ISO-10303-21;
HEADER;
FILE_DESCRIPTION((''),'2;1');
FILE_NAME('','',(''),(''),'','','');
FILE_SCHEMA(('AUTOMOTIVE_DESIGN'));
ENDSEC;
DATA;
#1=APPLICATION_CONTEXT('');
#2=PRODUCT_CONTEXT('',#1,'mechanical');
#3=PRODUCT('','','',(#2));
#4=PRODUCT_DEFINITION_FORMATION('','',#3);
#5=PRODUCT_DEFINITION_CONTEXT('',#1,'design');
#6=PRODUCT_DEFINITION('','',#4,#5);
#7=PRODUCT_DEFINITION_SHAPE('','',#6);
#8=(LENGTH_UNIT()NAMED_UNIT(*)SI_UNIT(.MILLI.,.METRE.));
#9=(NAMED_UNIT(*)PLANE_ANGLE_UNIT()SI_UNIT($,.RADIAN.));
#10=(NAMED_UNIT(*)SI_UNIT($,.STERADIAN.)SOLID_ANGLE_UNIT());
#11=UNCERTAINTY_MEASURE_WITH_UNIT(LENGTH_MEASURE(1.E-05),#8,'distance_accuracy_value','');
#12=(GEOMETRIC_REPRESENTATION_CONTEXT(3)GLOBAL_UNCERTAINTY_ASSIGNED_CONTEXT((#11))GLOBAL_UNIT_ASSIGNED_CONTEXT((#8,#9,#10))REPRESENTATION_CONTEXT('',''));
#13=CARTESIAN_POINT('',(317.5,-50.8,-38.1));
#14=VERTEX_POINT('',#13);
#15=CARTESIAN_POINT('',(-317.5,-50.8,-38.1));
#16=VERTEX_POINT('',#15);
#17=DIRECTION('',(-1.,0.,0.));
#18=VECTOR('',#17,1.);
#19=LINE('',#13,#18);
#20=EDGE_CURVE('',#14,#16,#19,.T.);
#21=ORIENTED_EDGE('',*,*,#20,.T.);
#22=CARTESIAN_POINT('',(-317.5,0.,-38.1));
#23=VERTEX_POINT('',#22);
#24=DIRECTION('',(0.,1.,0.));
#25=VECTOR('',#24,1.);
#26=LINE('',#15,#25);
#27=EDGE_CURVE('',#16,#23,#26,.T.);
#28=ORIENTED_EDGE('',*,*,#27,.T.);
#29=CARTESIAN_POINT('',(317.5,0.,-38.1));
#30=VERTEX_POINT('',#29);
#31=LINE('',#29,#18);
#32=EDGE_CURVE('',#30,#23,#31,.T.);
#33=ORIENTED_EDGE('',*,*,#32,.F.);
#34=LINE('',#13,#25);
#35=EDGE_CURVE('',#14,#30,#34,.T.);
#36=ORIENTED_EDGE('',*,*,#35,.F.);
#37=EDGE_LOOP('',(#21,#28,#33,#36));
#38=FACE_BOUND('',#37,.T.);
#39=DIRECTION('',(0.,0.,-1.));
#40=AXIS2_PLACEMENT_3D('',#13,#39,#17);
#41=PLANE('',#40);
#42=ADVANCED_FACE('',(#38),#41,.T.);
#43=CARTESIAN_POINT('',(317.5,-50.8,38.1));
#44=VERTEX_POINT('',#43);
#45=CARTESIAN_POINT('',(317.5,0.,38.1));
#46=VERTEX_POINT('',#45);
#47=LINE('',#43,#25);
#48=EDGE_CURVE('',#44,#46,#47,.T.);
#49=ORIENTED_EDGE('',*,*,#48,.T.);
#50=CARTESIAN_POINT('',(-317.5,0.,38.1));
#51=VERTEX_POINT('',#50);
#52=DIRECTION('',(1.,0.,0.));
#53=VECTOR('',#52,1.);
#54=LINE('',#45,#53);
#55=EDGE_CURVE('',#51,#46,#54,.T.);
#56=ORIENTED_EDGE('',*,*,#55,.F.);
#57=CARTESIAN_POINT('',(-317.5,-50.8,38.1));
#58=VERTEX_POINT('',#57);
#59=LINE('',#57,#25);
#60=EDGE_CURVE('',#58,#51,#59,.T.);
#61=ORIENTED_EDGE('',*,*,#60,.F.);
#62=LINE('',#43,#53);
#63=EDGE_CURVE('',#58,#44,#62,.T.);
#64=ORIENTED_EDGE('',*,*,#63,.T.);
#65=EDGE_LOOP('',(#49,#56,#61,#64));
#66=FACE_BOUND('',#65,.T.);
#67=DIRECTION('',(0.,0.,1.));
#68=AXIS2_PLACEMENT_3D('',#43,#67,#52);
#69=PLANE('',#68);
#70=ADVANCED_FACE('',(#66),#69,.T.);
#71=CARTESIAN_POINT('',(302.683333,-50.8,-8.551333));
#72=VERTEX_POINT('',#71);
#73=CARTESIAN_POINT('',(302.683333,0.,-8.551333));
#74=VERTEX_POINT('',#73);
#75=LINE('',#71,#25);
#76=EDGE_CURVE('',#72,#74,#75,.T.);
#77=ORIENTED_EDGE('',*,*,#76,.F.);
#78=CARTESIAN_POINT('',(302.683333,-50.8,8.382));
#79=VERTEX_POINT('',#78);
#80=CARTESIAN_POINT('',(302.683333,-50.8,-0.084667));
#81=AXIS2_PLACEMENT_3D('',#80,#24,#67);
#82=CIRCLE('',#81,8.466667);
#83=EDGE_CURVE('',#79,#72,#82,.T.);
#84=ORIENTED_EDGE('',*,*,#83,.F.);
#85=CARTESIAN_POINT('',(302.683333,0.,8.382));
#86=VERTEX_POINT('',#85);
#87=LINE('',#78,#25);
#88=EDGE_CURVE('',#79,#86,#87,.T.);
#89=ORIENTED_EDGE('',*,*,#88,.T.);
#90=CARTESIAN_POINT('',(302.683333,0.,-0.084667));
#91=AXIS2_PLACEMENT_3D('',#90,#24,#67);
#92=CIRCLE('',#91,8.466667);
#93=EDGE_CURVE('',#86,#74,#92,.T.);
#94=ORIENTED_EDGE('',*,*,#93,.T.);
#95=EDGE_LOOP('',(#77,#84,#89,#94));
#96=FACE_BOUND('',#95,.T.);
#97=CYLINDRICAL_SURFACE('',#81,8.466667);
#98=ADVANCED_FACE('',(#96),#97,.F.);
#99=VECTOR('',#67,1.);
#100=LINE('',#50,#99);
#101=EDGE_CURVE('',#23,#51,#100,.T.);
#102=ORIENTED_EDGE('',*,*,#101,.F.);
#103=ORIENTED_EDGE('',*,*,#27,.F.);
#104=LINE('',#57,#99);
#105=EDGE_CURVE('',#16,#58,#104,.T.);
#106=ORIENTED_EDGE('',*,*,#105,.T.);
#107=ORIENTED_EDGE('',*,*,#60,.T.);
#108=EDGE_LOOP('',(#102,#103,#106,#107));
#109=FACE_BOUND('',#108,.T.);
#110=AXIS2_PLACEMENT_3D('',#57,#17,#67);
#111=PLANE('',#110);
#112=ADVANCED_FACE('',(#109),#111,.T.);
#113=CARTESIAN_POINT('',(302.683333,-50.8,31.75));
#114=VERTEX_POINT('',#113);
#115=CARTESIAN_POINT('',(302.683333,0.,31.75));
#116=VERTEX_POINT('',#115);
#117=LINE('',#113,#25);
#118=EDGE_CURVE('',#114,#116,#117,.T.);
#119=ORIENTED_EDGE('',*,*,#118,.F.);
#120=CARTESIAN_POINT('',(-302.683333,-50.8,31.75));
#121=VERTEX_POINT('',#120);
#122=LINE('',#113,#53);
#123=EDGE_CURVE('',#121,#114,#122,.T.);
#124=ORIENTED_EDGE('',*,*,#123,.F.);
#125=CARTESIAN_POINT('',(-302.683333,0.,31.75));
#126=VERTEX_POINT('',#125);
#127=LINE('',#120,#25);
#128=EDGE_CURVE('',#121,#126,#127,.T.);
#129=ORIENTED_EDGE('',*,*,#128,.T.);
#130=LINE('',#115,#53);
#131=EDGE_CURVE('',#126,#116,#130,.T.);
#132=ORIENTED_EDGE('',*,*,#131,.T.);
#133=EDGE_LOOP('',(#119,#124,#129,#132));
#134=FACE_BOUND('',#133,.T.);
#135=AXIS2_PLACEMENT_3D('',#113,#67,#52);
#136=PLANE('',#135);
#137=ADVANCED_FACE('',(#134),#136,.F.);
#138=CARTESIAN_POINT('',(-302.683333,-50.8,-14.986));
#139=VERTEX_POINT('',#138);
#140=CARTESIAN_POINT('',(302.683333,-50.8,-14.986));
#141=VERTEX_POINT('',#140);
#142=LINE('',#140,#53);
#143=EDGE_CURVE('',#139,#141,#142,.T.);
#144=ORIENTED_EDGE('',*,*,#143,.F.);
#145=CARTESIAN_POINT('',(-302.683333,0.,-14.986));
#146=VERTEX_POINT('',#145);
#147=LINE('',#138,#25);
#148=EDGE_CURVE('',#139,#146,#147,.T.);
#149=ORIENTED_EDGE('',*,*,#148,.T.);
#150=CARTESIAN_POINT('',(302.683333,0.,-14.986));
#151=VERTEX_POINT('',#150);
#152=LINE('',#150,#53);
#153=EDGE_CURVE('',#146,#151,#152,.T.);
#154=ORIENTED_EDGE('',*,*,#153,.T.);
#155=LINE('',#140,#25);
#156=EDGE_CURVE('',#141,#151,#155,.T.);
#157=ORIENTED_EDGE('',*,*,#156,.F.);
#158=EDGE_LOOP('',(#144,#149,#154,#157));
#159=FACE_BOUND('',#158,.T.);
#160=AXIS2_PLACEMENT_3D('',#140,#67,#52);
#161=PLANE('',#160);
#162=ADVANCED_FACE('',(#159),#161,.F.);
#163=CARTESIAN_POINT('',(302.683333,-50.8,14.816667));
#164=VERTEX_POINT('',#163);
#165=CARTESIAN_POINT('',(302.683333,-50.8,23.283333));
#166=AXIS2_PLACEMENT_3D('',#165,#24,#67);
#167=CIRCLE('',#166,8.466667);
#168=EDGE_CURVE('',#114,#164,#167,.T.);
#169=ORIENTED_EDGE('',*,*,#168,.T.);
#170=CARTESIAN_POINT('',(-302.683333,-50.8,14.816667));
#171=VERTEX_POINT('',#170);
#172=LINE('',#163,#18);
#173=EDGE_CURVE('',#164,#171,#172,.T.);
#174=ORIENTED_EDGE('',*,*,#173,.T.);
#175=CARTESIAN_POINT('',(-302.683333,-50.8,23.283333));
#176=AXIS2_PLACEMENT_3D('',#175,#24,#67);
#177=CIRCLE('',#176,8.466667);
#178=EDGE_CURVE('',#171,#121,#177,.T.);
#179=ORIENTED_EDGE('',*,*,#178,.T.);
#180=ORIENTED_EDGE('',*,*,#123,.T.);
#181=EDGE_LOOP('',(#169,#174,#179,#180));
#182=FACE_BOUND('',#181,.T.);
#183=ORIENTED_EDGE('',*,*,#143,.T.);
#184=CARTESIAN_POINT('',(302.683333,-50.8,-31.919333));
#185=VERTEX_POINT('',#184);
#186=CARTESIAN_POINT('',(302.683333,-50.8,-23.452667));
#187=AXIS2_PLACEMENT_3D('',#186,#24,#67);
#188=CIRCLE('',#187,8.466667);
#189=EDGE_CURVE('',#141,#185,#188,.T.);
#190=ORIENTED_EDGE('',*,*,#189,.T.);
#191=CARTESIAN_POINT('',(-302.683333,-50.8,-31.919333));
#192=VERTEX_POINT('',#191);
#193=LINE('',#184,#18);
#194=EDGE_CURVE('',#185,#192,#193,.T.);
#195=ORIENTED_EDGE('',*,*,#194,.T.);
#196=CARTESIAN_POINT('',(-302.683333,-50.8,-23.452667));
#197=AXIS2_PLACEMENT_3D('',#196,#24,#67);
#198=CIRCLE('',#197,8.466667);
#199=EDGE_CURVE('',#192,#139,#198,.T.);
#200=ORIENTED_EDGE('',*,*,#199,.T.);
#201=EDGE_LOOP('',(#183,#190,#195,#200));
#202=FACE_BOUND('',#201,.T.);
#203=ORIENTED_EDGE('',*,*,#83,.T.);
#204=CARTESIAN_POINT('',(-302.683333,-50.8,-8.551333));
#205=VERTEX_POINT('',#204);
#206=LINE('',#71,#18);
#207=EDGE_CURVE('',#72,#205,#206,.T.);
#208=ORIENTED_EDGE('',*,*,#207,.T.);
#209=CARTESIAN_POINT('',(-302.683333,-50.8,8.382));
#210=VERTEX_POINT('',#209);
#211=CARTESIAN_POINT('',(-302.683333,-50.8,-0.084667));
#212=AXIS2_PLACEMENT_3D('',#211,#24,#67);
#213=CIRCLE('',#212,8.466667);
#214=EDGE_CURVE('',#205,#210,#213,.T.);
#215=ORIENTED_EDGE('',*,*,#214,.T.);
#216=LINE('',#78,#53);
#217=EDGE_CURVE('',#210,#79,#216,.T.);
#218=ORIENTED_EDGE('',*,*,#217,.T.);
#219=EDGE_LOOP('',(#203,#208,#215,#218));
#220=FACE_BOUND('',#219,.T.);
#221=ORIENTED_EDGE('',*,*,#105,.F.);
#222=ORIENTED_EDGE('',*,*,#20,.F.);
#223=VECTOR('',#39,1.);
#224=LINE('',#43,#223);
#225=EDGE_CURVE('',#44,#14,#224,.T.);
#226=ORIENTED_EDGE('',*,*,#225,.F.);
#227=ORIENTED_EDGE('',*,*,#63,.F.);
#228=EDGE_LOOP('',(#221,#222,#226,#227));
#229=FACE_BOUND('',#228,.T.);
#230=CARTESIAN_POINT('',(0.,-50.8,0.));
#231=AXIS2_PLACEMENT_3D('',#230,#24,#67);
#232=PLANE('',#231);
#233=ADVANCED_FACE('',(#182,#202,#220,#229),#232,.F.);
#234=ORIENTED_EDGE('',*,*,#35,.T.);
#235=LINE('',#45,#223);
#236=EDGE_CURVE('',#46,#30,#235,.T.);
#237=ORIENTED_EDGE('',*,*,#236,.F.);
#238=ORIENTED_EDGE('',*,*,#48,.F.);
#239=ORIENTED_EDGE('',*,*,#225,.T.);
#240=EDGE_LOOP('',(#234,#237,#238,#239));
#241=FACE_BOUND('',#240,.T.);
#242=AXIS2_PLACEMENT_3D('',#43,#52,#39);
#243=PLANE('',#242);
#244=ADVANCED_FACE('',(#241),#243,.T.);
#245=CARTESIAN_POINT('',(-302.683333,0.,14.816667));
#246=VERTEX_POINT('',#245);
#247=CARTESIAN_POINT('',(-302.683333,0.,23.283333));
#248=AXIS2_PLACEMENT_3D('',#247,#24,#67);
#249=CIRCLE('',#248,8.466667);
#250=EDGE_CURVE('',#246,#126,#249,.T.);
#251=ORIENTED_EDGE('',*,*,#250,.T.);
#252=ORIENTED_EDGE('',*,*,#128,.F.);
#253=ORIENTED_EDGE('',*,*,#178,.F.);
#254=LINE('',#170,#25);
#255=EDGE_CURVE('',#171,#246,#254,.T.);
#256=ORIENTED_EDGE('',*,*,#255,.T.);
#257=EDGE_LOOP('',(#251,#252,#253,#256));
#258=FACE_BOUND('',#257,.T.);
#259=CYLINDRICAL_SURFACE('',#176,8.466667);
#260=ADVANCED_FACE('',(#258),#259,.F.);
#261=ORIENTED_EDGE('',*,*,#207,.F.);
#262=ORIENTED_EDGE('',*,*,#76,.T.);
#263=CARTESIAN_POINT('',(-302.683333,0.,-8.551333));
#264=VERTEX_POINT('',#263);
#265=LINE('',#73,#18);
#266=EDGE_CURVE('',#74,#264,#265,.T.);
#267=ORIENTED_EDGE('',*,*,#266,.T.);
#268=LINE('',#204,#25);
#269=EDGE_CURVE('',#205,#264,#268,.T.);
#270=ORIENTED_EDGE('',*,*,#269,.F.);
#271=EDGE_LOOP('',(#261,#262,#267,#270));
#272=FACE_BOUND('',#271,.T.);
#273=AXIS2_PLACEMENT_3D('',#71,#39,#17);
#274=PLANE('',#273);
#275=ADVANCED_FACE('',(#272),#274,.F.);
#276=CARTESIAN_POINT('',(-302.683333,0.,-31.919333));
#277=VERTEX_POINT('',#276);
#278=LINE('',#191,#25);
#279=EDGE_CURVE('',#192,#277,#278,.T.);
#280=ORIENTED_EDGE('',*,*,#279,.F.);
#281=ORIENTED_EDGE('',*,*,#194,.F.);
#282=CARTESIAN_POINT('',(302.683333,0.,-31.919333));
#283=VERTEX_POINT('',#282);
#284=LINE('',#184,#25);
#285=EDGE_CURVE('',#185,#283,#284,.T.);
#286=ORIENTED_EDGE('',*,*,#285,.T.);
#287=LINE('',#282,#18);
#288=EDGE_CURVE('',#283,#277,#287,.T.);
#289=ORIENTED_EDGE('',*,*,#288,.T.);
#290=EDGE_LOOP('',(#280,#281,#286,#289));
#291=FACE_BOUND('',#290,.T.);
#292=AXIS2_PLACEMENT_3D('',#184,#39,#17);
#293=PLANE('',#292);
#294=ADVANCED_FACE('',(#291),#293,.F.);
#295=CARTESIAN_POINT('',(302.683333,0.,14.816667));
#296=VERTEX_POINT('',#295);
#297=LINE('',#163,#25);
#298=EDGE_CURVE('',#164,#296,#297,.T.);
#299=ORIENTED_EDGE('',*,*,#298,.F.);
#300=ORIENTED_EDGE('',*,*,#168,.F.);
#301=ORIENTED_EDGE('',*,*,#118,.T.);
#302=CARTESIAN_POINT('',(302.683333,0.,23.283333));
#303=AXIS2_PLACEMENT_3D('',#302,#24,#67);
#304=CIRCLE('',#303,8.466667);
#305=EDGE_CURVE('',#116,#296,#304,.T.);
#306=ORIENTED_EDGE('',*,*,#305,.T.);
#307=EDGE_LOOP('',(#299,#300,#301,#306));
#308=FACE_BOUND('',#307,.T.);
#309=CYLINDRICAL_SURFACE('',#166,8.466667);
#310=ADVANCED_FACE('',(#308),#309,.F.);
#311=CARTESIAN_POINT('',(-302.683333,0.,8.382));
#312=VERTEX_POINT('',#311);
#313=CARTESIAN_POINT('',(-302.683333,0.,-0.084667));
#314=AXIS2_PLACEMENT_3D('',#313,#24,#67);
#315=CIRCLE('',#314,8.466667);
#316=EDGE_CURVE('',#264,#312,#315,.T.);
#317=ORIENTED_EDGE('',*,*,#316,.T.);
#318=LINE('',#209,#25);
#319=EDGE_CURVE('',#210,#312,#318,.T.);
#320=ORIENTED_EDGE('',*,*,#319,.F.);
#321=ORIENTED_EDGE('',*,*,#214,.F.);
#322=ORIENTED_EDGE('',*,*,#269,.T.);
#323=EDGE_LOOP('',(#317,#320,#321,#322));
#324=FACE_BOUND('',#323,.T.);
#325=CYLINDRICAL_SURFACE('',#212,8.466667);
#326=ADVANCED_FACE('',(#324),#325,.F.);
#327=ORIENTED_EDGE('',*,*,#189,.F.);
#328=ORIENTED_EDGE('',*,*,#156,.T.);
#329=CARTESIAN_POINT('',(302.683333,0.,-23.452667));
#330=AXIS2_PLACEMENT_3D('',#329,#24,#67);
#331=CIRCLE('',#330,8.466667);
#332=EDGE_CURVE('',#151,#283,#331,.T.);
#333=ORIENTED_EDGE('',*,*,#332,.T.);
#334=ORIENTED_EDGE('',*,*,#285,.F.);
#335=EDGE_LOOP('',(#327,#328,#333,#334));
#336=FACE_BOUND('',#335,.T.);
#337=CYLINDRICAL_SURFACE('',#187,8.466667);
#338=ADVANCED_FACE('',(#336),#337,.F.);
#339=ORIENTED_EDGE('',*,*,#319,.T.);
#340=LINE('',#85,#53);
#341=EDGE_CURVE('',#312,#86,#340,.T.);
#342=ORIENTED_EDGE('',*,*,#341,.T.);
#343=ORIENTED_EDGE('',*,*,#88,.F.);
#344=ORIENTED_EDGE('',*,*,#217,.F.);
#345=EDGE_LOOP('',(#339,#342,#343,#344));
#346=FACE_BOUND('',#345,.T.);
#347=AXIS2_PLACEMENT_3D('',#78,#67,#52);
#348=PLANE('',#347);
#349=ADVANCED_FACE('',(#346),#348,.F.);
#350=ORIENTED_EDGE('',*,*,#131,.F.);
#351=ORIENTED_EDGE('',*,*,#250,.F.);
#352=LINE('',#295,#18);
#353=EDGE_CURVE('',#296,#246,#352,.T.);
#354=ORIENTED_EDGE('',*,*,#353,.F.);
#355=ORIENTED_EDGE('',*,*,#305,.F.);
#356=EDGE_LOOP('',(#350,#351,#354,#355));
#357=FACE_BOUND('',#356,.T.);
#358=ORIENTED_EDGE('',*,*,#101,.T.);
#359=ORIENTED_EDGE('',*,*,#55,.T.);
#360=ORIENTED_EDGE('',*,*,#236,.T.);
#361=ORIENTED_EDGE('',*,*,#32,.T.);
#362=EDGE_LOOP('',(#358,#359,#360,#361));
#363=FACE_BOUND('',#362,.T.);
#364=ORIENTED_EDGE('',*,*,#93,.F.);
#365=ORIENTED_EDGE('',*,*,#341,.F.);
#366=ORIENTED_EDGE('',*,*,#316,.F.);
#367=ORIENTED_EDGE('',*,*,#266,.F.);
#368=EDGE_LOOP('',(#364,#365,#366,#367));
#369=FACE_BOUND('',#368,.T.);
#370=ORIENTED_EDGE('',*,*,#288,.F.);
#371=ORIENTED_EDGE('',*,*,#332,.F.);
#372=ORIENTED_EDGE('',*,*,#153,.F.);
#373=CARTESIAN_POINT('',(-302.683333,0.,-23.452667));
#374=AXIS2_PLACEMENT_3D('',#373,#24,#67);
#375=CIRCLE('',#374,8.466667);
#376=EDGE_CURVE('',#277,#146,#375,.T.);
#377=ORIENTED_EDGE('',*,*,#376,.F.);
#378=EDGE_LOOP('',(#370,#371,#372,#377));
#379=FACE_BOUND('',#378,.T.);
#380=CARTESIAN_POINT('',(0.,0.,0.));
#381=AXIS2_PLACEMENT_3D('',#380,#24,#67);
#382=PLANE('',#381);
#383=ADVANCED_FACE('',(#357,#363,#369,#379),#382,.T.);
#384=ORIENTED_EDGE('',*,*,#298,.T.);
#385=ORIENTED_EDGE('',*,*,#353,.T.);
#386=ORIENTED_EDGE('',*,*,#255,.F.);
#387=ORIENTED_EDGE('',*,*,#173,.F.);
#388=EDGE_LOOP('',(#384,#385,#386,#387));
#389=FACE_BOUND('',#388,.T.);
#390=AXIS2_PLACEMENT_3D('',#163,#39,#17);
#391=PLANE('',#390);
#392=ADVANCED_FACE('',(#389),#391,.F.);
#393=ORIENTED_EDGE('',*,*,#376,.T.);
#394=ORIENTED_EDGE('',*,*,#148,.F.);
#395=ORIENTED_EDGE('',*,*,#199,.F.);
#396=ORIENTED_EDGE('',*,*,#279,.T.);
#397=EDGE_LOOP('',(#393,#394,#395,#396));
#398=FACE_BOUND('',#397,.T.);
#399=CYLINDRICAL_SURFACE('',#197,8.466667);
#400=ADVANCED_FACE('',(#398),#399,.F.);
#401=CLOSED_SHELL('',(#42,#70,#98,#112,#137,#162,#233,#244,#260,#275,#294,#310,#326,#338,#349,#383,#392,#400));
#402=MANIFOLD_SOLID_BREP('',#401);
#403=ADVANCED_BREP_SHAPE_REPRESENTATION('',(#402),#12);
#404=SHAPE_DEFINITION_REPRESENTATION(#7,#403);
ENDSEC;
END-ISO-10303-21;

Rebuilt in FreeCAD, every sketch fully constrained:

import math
import FreeCAD as App
import Part
import Sketcher
Q = App.Units.Quantity


def add_polygon(sketch, points):
    """Adds a closed chain of lines whose ends are joined by coincident constraints."""
    first, n = sketch.GeometryCount, len(points)
    for a, b in zip(points, points[1:] + points[:1]):
        sketch.addGeometry(Part.LineSegment(App.Vector(*a, 0), App.Vector(*b, 0)), False)
    for i in range(n):
        sketch.addConstraint(Sketcher.Constraint("Coincident", first + i, 2, first + (i + 1) % n, 1))

doc = App.newDocument("Part")
body = doc.addObject("PartDesign::Body", "Body")

# Sketch on XZ plane
sketch1 = body.newObject("Sketcher::SketchObject", "Sketch")
sketch1.AttachmentSupport = (doc.getObject("XZ_Plane"), [""])
sketch1.MapMode = "FlatFace"
add_polygon(sketch1, [(-318, -38), (-318, 38), (318, 38), (318, -38)])  # lines 0-3
sketch1.addGeometry(Part.ArcOfCircle(Part.Circle(App.Vector(303, 23, 0), App.Vector(0, 0, 1), 8), math.radians(-90), math.radians(90)), False)  # 4
sketch1.addGeometry(Part.LineSegment(App.Vector(303, 32, 0), App.Vector(-303, 32, 0)), False)  # 5
sketch1.addGeometry(Part.ArcOfCircle(Part.Circle(App.Vector(-303, 23, 0), App.Vector(0, 0, 1), 8), math.radians(90), math.radians(270)), False)  # 6
sketch1.addGeometry(Part.LineSegment(App.Vector(-303, 15, 0), App.Vector(303, 15, 0)), False)  # 7
sketch1.addGeometry(Part.ArcOfCircle(Part.Circle(App.Vector(303, 0, 0), App.Vector(0, 0, 1), 8), math.radians(-90), math.radians(90)), False)  # 8
sketch1.addGeometry(Part.LineSegment(App.Vector(303, 8, 0), App.Vector(-303, 8, 0)), False)  # 9
sketch1.addGeometry(Part.ArcOfCircle(Part.Circle(App.Vector(-303, 0, 0), App.Vector(0, 0, 1), 8), math.radians(90), math.radians(270)), False)  # 10
sketch1.addGeometry(Part.LineSegment(App.Vector(-303, -9, 0), App.Vector(303, -9, 0)), False)  # 11
sketch1.addGeometry(Part.ArcOfCircle(Part.Circle(App.Vector(303, -23, 0), App.Vector(0, 0, 1), 8), math.radians(-90), math.radians(90)), False)  # 12
sketch1.addGeometry(Part.LineSegment(App.Vector(303, -15, 0), App.Vector(-303, -15, 0)), False)  # 13
sketch1.addGeometry(Part.ArcOfCircle(Part.Circle(App.Vector(-303, -23, 0), App.Vector(0, 0, 1), 8), math.radians(90), math.radians(270)), False)  # 14
sketch1.addGeometry(Part.LineSegment(App.Vector(-303, -32, 0), App.Vector(303, -32, 0)), False)  # 15
sketch1.addConstraint(Sketcher.Constraint("Tangent", 4, 2, 5, 1))
sketch1.addConstraint(Sketcher.Constraint("Tangent", 5, 2, 6, 1))
sketch1.addConstraint(Sketcher.Constraint("Tangent", 6, 2, 7, 1))
sketch1.addConstraint(Sketcher.Constraint("Tangent", 7, 2, 4, 1))
sketch1.addConstraint(Sketcher.Constraint("Tangent", 8, 2, 9, 1))
sketch1.addConstraint(Sketcher.Constraint("Tangent", 9, 2, 10, 1))
sketch1.addConstraint(Sketcher.Constraint("Tangent", 10, 2, 11, 1))
sketch1.addConstraint(Sketcher.Constraint("Tangent", 11, 2, 8, 1))
sketch1.addConstraint(Sketcher.Constraint("Tangent", 12, 2, 13, 1))
sketch1.addConstraint(Sketcher.Constraint("Tangent", 13, 2, 14, 1))
sketch1.addConstraint(Sketcher.Constraint("Tangent", 14, 2, 15, 1))
sketch1.addConstraint(Sketcher.Constraint("Tangent", 15, 2, 12, 1))
sketch1.addConstraint(Sketcher.Constraint("Vertical", 0))
sketch1.addConstraint(Sketcher.Constraint("Horizontal", 1))
sketch1.addConstraint(Sketcher.Constraint("Vertical", 2))
sketch1.addConstraint(Sketcher.Constraint("Horizontal", 3))
sketch1.addConstraint(Sketcher.Constraint("Horizontal", 5))
sketch1.addConstraint(Sketcher.Constraint("Horizontal", 7))
sketch1.addConstraint(Sketcher.Constraint("Horizontal", 9))
sketch1.addConstraint(Sketcher.Constraint("Horizontal", 11))
sketch1.addConstraint(Sketcher.Constraint("Horizontal", 13))
sketch1.addConstraint(Sketcher.Constraint("Horizontal", 15))
sketch1.addConstraint(Sketcher.Constraint("Equal", 6, 8))
sketch1.addConstraint(Sketcher.Constraint("Equal", 10, 12))
sketch1.addConstraint(Sketcher.Constraint("Symmetric", 0, 2, 2, 2, -1, 1))
sketch1.addConstraint(Sketcher.Constraint("Vertical", 4, 3, 8, 3))
sketch1.addConstraint(Sketcher.Constraint("Vertical", 6, 3, 10, 3))
sketch1.addConstraint(Sketcher.Constraint("Vertical", 8, 3, 12, 3))
sketch1.addConstraint(Sketcher.Constraint("Vertical", 10, 3, 14, 3))
sketch1.addConstraint(Sketcher.Constraint("DistanceX", 1, 1, 1, 2, Q("25 in")))
sketch1.addConstraint(Sketcher.Constraint("DistanceY", 0, 1, 0, 2, Q("3 in")))
sketch1.addConstraint(Sketcher.Constraint("DistanceY", -1, 1, 4, 2, Q("1.25 in")))
sketch1.addConstraint(Sketcher.Constraint("DistanceY", -1, 1, 8, 2, Q("0.33 in")))
sketch1.addConstraint(Sketcher.Constraint("DistanceY", 12, 2, -1, 1, Q("0.59 in")))
sketch1.addConstraint(Sketcher.Constraint("Radius", 4, 8.466667))
sketch1.addConstraint(Sketcher.Constraint("DistanceX", 5, 2, 5, 1, 605.366667))
sketch1.addConstraint(Sketcher.Constraint("DistanceX", -1, 1, 4, 3, 302.683333))
pad1 = body.newObject("PartDesign::Pad", "Pad")
pad1.Profile = sketch1
pad1.Length = Q("2 in")

doc.recompute()
